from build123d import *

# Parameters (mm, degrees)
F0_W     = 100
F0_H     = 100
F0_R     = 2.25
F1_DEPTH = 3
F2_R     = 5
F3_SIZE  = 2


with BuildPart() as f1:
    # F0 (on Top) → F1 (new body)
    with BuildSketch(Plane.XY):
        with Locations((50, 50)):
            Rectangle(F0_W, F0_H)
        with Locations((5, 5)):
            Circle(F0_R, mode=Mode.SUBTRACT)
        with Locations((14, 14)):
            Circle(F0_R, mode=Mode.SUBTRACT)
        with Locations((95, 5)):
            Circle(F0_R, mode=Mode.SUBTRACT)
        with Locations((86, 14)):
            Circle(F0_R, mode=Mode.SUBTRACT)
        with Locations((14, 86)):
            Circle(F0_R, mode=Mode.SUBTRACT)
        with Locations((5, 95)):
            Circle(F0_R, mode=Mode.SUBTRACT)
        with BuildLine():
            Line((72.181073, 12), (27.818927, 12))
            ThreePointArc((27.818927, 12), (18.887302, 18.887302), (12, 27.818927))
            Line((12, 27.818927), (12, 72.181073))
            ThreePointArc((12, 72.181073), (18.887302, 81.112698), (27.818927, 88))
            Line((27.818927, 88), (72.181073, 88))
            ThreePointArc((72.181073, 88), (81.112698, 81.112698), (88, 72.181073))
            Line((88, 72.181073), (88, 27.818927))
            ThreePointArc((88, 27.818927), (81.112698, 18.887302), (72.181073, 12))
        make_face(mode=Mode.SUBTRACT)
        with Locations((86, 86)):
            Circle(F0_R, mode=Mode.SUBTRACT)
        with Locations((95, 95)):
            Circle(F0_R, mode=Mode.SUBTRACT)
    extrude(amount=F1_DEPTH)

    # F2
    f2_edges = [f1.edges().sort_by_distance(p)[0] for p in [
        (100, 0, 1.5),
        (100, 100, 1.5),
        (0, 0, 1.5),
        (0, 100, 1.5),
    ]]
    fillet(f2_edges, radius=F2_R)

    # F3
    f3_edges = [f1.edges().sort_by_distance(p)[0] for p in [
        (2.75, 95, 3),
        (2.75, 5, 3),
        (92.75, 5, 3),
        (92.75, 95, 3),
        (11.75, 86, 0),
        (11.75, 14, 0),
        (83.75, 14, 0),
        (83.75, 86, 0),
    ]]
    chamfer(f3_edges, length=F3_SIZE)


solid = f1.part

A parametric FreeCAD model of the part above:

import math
import FreeCAD as App
import Part
import Sketcher
from FreeCAD import Vector


def edges_at(feature, points):
    """Names of the edges that pass closest to the given points."""
    edges = feature.Shape.Edges
    near = lambda p: min(range(len(edges)), key=lambda i: edges[i].distToShape(Part.Vertex(*p))[0])
    return sorted({f"Edge{near(p) + 1}" for p in points})

doc = App.newDocument("Part")
body = doc.addObject("PartDesign::Body", "Body")

sketch1 = doc.addObject("Sketcher::SketchObject", "Sketch")
body.addObject(sketch1)
sketch1.AttachmentSupport = (doc.XY_Plane, [""])
sketch1.MapMode = "FlatFace"
sketch1.addGeometry([
    Part.LineSegment(Vector(0, 100, 0), Vector(0, 0, 0)),
    Part.LineSegment(Vector(0, 0, 0), Vector(100, 0, 0)),
    Part.LineSegment(Vector(100, 0, 0), Vector(100, 100, 0)),
    Part.LineSegment(Vector(100, 100, 0), Vector(0, 100, 0)),
    Part.Circle(Vector(5, 5, 0), Vector(0, 0, 1), 2.2),
    Part.Circle(Vector(14, 14, 0), Vector(0, 0, 1), 2.2),
    Part.Circle(Vector(95, 5, 0), Vector(0, 0, 1), 2.2),
    Part.Circle(Vector(86, 14, 0), Vector(0, 0, 1), 2.2),
    Part.Circle(Vector(14, 86, 0), Vector(0, 0, 1), 2.2),
    Part.Circle(Vector(5, 95, 0), Vector(0, 0, 1), 2.2),
    Part.ArcOfCircle(Part.Circle(Vector(50, 50, 0), Vector(0, 0, 1), 44), math.radians(-60), math.radians(-30)),
    Part.LineSegment(Vector(72.2, 12, 0), Vector(27.8, 12, 0)),
    Part.ArcOfCircle(Part.Circle(Vector(50, 50, 0), Vector(0, 0, 1), 44), math.radians(-150), math.radians(-120)),
    Part.LineSegment(Vector(12, 27.8, 0), Vector(12, 72.2, 0)),
    Part.ArcOfCircle(Part.Circle(Vector(50, 50, 0), Vector(0, 0, 1), 44), math.radians(120), math.radians(150)),
    Part.LineSegment(Vector(27.8, 88, 0), Vector(72.2, 88, 0)),
    Part.ArcOfCircle(Part.Circle(Vector(50, 50, 0), Vector(0, 0, 1), 44), math.radians(30), math.radians(60)),
    Part.LineSegment(Vector(88, 72.2, 0), Vector(88, 27.8, 0)),
    Part.Circle(Vector(86, 86, 0), Vector(0, 0, 1), 2.2),
    Part.Circle(Vector(95, 95, 0), Vector(0, 0, 1), 2.2),
], False)
sketch1.addConstraint([
    Sketcher.Constraint("Coincident", 0, 2, 1, 1),
    Sketcher.Constraint("Coincident", 1, 2, 2, 1),
    Sketcher.Constraint("Coincident", 2, 2, 3, 1),
    Sketcher.Constraint("Coincident", 3, 2, 0, 1),
    Sketcher.Constraint("Coincident", 10, 1, 11, 1),
    Sketcher.Constraint("Coincident", 11, 2, 12, 2),
    Sketcher.Constraint("Coincident", 12, 1, 13, 1),
    Sketcher.Constraint("Coincident", 13, 2, 14, 2),
    Sketcher.Constraint("Coincident", 14, 1, 15, 1),
    Sketcher.Constraint("Coincident", 15, 2, 16, 2),
    Sketcher.Constraint("Coincident", 16, 1, 17, 1),
    Sketcher.Constraint("Coincident", 17, 2, 10, 2),
    Sketcher.Constraint("Vertical", 0),
    Sketcher.Constraint("Horizontal", 1),
    Sketcher.Constraint("Vertical", 2),
    Sketcher.Constraint("Horizontal", 3),
    Sketcher.Constraint("Horizontal", 11),
    Sketcher.Constraint("Vertical", 13),
    Sketcher.Constraint("Horizontal", 15),
    Sketcher.Constraint("Vertical", 17),
    Sketcher.Constraint("Coincident", 0, 2, -1, 1),
    Sketcher.Constraint("Equal", 4, 5),
    Sketcher.Constraint("Equal", 5, 6),
    Sketcher.Constraint("Equal", 6, 7),
    Sketcher.Constraint("Equal", 7, 8),
    Sketcher.Constraint("Equal", 8, 9),
    Sketcher.Constraint("Equal", 10, 12),
    Sketcher.Constraint("Equal", 12, 14),
    Sketcher.Constraint("Equal", 14, 16),
    Sketcher.Constraint("Equal", 9, 18),
    Sketcher.Constraint("Equal", 18, 19),
    Sketcher.Constraint("Horizontal", 4, 3, 6, 3),
    Sketcher.Constraint("Horizontal", 5, 3, 7, 3),
    Sketcher.Constraint("Horizontal", 10, 3, 12, 3),
    Sketcher.Constraint("Horizontal", 14, 3, 16, 3),
    Sketcher.Constraint("Horizontal", 8, 3, 18, 3),
    Sketcher.Constraint("Horizontal", 9, 3, 19, 3),
    Sketcher.Constraint("Horizontal", 13, 2, 16, 1),
    Sketcher.Constraint("Horizontal", 12, 1, 17, 2),
    Sketcher.Constraint("Vertical", 5, 3, 8, 3),
    Sketcher.Constraint("Vertical", 4, 3, 9, 3),
    Sketcher.Constraint("Vertical", 12, 3, 14, 3),
    Sketcher.Constraint("Vertical", 7, 3, 18, 3),
    Sketcher.Constraint("Vertical", 6, 3, 19, 3),
    Sketcher.Constraint("Vertical", 11, 2, 14, 1),
    Sketcher.Constraint("Equal", 3, 0),
    Sketcher.Constraint("Equal", 15, 13),
    Sketcher.Constraint("Diameter", 4, 4.5),
    Sketcher.Constraint("DistanceX", 1, 1, 1, 2, 100.0),
    Sketcher.Constraint("DistanceX", -1, 1, 4, 3, 5.0),
    Sketcher.Constraint("DistanceY", -1, 1, 4, 3, 5.0),
    Sketcher.Constraint("DistanceX", -1, 1, 5, 3, 14.0),
    Sketcher.Constraint("DistanceY", -1, 1, 5, 3, 14.0),
    Sketcher.Constraint("DistanceX", -1, 1, 6, 3, 95.0),
    Sketcher.Constraint("DistanceX", -1, 1, 7, 3, 86.0),
    Sketcher.Constraint("DistanceY", -1, 1, 8, 3, 86.0),
    Sketcher.Constraint("DistanceY", -1, 1, 9, 3, 95.0),
    Sketcher.Constraint("DistanceY", -1, 1, 10, 1, 12.0),
    Sketcher.Constraint("DistanceX", -1, 1, 12, 1, 12.0),
    Sketcher.Constraint("DistanceY", -1, 1, 14, 1, 88.0),
    Sketcher.Constraint("DistanceX", -1, 1, 16, 1, 88.0),
    Sketcher.Constraint("Radius", 10, 44.000015),
    Sketcher.Constraint("DistanceX", 11, 2, 11, 1, 44.362146),
])
pad1 = doc.addObject("PartDesign::Pad", "Pad")
body.addObject(pad1)
pad1.Profile = sketch1
pad1.Length = 3
doc.recompute()

fillet = doc.addObject("PartDesign::Fillet", "Fillet")
body.addObject(fillet)
fillet.Base = (pad1, edges_at(pad1, [
    (100, 0, 1.5),
    (100, 100, 1.5),
    (0, 0, 1.5),
    (0, 100, 1.5),
]))
fillet.Radius = 5
doc.recompute()

chamfer = doc.addObject("PartDesign::Chamfer", "Chamfer")
body.addObject(chamfer)
chamfer.Base = (fillet, edges_at(fillet, [
    (2.75, 95, 3),
    (2.75, 5, 3),
    (92.75, 5, 3),
    (92.75, 95, 3),
    (11.75, 86, 0),
    (11.75, 14, 0),
    (83.75, 14, 0),
    (83.75, 86, 0),
]))
chamfer.Size = 2

doc.recompute()
